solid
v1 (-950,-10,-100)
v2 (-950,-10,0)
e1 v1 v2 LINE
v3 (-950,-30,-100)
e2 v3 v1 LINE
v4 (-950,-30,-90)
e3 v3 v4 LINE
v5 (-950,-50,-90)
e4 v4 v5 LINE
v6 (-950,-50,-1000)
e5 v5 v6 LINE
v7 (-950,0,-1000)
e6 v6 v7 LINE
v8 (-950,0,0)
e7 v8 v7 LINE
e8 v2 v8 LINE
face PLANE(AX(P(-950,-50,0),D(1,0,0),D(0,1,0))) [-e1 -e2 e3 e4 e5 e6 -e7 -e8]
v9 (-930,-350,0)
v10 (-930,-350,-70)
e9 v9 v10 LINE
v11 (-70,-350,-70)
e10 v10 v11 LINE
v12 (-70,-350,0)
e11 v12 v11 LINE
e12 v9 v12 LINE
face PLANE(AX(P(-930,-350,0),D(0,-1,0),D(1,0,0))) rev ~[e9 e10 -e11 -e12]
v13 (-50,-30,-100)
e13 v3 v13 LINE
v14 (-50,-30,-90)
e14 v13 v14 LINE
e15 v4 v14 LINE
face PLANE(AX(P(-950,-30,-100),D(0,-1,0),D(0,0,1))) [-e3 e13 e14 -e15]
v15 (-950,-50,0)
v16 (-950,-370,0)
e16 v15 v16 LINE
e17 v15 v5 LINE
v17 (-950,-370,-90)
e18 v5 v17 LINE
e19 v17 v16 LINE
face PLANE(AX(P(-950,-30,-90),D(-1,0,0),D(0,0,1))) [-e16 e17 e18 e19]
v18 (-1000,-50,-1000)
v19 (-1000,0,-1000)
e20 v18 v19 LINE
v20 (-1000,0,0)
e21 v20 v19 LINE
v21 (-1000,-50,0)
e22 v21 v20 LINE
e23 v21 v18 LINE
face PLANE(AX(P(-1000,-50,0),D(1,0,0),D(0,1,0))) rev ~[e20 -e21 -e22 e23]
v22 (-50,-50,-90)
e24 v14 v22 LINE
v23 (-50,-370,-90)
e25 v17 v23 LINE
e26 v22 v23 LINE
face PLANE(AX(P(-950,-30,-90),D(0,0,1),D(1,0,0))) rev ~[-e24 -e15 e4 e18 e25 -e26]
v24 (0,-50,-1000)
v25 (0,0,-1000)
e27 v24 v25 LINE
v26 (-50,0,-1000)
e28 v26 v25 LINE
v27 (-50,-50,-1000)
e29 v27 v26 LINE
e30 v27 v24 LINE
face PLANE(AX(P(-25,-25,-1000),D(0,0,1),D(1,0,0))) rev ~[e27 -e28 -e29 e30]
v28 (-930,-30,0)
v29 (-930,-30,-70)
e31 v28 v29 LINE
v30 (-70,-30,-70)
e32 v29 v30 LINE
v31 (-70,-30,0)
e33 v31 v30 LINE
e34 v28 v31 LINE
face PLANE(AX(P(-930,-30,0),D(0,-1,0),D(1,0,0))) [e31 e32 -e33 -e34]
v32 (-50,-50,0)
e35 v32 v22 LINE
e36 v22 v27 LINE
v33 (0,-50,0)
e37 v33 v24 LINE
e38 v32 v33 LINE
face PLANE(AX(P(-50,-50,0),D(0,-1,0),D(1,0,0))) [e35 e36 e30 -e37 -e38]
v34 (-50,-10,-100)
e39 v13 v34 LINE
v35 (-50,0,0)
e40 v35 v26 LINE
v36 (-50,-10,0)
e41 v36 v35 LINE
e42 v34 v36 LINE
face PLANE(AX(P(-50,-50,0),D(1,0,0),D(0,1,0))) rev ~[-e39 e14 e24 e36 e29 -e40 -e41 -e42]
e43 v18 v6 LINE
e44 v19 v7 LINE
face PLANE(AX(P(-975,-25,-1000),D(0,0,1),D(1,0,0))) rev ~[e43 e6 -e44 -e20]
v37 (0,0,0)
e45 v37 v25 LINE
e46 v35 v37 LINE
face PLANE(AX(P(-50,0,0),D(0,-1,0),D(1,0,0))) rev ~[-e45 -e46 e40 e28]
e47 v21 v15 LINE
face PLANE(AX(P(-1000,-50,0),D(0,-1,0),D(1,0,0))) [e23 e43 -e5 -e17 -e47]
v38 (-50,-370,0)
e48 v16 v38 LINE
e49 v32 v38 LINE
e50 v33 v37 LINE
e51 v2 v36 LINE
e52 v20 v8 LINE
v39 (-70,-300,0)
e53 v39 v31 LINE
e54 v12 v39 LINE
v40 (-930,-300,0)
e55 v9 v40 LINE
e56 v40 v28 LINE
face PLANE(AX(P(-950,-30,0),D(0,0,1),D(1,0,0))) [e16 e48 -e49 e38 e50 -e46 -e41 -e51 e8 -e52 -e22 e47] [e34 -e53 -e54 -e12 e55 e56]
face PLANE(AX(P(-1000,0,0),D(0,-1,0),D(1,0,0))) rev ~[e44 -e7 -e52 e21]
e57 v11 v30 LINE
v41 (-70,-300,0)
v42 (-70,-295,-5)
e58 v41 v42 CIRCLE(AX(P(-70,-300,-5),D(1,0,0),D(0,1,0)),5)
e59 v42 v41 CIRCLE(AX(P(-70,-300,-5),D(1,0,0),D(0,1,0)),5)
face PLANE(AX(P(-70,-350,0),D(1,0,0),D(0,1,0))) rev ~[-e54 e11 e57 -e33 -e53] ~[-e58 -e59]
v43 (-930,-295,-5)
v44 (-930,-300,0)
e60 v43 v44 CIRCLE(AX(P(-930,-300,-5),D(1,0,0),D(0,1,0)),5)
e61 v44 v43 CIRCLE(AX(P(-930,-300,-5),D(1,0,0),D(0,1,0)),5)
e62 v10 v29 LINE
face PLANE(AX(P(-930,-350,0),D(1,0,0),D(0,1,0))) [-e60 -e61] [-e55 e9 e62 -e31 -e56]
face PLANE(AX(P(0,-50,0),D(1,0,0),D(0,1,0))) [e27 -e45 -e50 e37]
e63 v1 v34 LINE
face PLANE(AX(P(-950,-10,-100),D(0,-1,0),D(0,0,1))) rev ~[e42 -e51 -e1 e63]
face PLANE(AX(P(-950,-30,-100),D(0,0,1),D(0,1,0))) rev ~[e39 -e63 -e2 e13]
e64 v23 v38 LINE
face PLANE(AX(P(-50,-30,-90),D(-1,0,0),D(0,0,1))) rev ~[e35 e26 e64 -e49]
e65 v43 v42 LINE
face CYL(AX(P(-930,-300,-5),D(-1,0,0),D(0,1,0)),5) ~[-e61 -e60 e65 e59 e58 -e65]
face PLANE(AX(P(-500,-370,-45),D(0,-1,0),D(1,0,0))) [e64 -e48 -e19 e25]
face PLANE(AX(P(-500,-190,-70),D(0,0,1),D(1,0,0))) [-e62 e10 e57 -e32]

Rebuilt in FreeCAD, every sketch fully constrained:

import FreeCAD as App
import Part
import Sketcher

V = App.Vector


def add_polygon(sketch, points):
    """Adds a closed chain of lines whose ends are joined by coincident constraints."""
    first, n = sketch.GeometryCount, len(points)
    for a, b in zip(points, points[1:] + points[:1]):
        sketch.addGeometry(Part.LineSegment(App.Vector(*a, 0), App.Vector(*b, 0)), False)
    for i in range(n):
        sketch.addConstraint(Sketcher.Constraint("Coincident", first + i, 2, first + (i + 1) % n, 1))

doc = App.newDocument("Part")
params = doc.addObject("Spreadsheet::Sheet", "Params")
for row, (alias, value) in enumerate([
    ("sketch1_width", "50 mm"),
    ("pad1_length", "1000 mm"),
    ("sketch2_width", "50 mm"),
    ("pad2_length", "1000 mm"),
    ("sketch3_width", "20 mm"),
    ("sketch3_height", "100 mm"),
    ("sketch4_width", "900 mm"),
    ("sketch4_height", "90 mm"),
    ("pad4_length", "340 mm"),
    ("sketch5_width", "860 mm"),
    ("sketch5_height", "320 mm"),
    ("pocket1_length", "70 mm"),
    ("sketch6_diameter", "10 mm"),
], start=1):
    params.set(f"A{row}", alias)
    params.set(f"B{row}", "=" + value)
    params.setAlias(f"B{row}", alias)

body = doc.addObject("PartDesign::Body", "Body")

# Sketch on XY plane
sketch1 = body.newObject("Sketcher::SketchObject", "Sketch")
sketch1.AttachmentSupport = (doc.getObject("XY_Plane"), [""])
sketch1.MapMode = "FlatFace"
add_polygon(sketch1, [(-50, 0), (-50, -50), (0, -50), (0, 0)])  # lines 0-3
sketch1.addConstraint([
    Sketcher.Constraint("Vertical", 0),
    Sketcher.Constraint("Horizontal", 1),
    Sketcher.Constraint("Vertical", 2),
    Sketcher.Constraint("Horizontal", 3),
    Sketcher.Constraint("Coincident", 2, 2, -1, 1),
    Sketcher.Constraint("Equal", 3, 0),
    Sketcher.Constraint("DistanceX", 1, 1, 1, 2, 50.0),
])
sketch1.setExpression("Constraints[10]", "Params.sketch1_width")
pad1 = body.newObject("PartDesign::Pad", "Pad")
pad1.Profile = sketch1
pad1.setExpression("Length", "Params.pad1_length")
pad1.Reversed = True
body2 = doc.addObject("PartDesign::Body", "Body001")

# Sketch on XY plane
sketch2 = body2.newObject("Sketcher::SketchObject", "Sketch001")
sketch2.AttachmentSupport = (doc.getObject("XY_Plane001"), [""])
sketch2.MapMode = "FlatFace"
add_polygon(sketch2, [(-1000, 0), (-1000, -50), (-950, -50), (-950, 0)])  # lines 0-3
sketch2.addConstraint([
    Sketcher.Constraint("Vertical", 0),
    Sketcher.Constraint("Horizontal", 1),
    Sketcher.Constraint("Vertical", 2),
    Sketcher.Constraint("Horizontal", 3),
    Sketcher.Constraint("PointOnObject", 2, 2, -1),
    Sketcher.Constraint("Equal", 3, 0),
    Sketcher.Constraint("DistanceX", 1, 1, 1, 2, 50.0),
    Sketcher.Constraint("DistanceX", 0, 2, -1, 1, 1000.0),
])
sketch2.setExpression("Constraints[10]", "Params.sketch2_width")
pad2 = body2.newObject("PartDesign::Pad", "Pad001")
pad2.Profile = sketch2
pad2.setExpression("Length", "Params.pad2_length")
pad2.Reversed = True
body.AllowCompound = True
doc.recompute()

boolean = body.newObject("PartDesign::Boolean", "Boolean")
boolean.Type = "Fuse"
boolean.addObjects([body2])

# Sketch on YZ plane
sketch3 = body.newObject("Sketcher::SketchObject", "Sketch002")
sketch3.AttachmentSupport = (doc.getObject("YZ_Plane"), [""])
sketch3.MapMode = "FlatFace"
sketch3.AttachmentOffset = App.Placement(V(0, 0, -950), App.Rotation())
add_polygon(sketch3, [(-30, 0), (-30, -100), (-10, -100), (-10, 0)])  # lines 0-3
sketch3.addConstraint([
    Sketcher.Constraint("Vertical", 0),
    Sketcher.Constraint("Horizontal", 1),
    Sketcher.Constraint("Vertical", 2),
    Sketcher.Constraint("Horizontal", 3),
    Sketcher.Constraint("PointOnObject", 2, 2, -1),
    Sketcher.Constraint("DistanceX", 1, 1, 1, 2, 20.0),
    Sketcher.Constraint("DistanceY", 0, 2, 0, 1, 100.0),
    Sketcher.Constraint("DistanceX", 0, 2, -1, 1, 30.0),
])
sketch3.setExpression("Constraints[9]", "Params.sketch3_width")
sketch3.setExpression("Constraints[10]", "Params.sketch3_height")
pad3 = body.newObject("PartDesign::Pad", "Pad002")
pad3.Profile = sketch3
pad3.Type = "UpToLast"

# Sketch on XZ plane
sketch4 = body.newObject("Sketcher::SketchObject", "Sketch003")
sketch4.AttachmentSupport = (doc.getObject("XZ_Plane"), [""])
sketch4.MapMode = "FlatFace"
sketch4.AttachmentOffset = App.Placement(V(0, 0, 30), App.Rotation())
add_polygon(sketch4, [(-950, 0), (-950, -90), (-50, -90), (-50, 0)])  # lines 0-3
sketch4.addConstraint([
    Sketcher.Constraint("Vertical", 0),
    Sketcher.Constraint("Horizontal", 1),
    Sketcher.Constraint("Vertical", 2),
    Sketcher.Constraint("Horizontal", 3),
    Sketcher.Constraint("PointOnObject", 2, 2, -1),
    Sketcher.Constraint("DistanceX", 1, 1, 1, 2, 900.0),
    Sketcher.Constraint("DistanceY", 0, 2, 0, 1, 90.0),
    Sketcher.Constraint("DistanceX", 0, 2, -1, 1, 950.0),
])
sketch4.setExpression("Constraints[9]", "Params.sketch4_width")
sketch4.setExpression("Constraints[10]", "Params.sketch4_height")
pad4 = body.newObject("PartDesign::Pad", "Pad003")
pad4.Profile = sketch4
pad4.setExpression("Length", "Params.pad4_length")

# Sketch on XY plane
sketch5 = body.newObject("Sketcher::SketchObject", "Sketch004")
sketch5.AttachmentSupport = (doc.getObject("XY_Plane"), [""])
sketch5.MapMode = "FlatFace"
add_polygon(sketch5, [(-930, -30), (-930, -350), (-70, -350), (-70, -30)])  # lines 0-3
sketch5.addConstraint([
    Sketcher.Constraint("Vertical", 0),
    Sketcher.Constraint("Horizontal", 1),
    Sketcher.Constraint("Vertical", 2),
    Sketcher.Constraint("Horizontal", 3),
    Sketcher.Constraint("DistanceX", 1, 1, 1, 2, 860.0),
    Sketcher.Constraint("DistanceY", 0, 2, 0, 1, 320.0),
    Sketcher.Constraint("DistanceX", 0, 2, -1, 1, 930.0),
    Sketcher.Constraint("DistanceY", 0, 2, -1, 1, 350.0),
])
sketch5.setExpression("Constraints[8]", "Params.sketch5_width")
sketch5.setExpression("Constraints[9]", "Params.sketch5_height")
pocket1 = body.newObject("PartDesign::Pocket", "Pocket")
pocket1.Profile = sketch5
pocket1.setExpression("Length", "Params.pocket1_length")

# Sketch on YZ plane
sketch6 = body.newObject("Sketcher::SketchObject", "Sketch005")
sketch6.AttachmentSupport = (doc.getObject("YZ_Plane"), [""])
sketch6.MapMode = "FlatFace"
sketch6.AttachmentOffset = App.Placement(V(0, 0, -930), App.Rotation())
sketch6.addGeometry(Part.Circle(V(-300, -5, 0), V(0, 0, 1), 5), False)
sketch6.addConstraint([
    Sketcher.Constraint("Diameter", 0, 10.0),
    Sketcher.Constraint("DistanceX", 0, 3, -1, 1, 300.0),
    Sketcher.Constraint("DistanceY", 0, 3, -1, 1, 5.0),
])
sketch6.setExpression("Constraints[0]", "Params.sketch6_diameter")
pad5 = body.newObject("PartDesign::Pad", "Pad004")
pad5.Profile = sketch6
pad5.Type = "UpToLast"

doc.recompute()
